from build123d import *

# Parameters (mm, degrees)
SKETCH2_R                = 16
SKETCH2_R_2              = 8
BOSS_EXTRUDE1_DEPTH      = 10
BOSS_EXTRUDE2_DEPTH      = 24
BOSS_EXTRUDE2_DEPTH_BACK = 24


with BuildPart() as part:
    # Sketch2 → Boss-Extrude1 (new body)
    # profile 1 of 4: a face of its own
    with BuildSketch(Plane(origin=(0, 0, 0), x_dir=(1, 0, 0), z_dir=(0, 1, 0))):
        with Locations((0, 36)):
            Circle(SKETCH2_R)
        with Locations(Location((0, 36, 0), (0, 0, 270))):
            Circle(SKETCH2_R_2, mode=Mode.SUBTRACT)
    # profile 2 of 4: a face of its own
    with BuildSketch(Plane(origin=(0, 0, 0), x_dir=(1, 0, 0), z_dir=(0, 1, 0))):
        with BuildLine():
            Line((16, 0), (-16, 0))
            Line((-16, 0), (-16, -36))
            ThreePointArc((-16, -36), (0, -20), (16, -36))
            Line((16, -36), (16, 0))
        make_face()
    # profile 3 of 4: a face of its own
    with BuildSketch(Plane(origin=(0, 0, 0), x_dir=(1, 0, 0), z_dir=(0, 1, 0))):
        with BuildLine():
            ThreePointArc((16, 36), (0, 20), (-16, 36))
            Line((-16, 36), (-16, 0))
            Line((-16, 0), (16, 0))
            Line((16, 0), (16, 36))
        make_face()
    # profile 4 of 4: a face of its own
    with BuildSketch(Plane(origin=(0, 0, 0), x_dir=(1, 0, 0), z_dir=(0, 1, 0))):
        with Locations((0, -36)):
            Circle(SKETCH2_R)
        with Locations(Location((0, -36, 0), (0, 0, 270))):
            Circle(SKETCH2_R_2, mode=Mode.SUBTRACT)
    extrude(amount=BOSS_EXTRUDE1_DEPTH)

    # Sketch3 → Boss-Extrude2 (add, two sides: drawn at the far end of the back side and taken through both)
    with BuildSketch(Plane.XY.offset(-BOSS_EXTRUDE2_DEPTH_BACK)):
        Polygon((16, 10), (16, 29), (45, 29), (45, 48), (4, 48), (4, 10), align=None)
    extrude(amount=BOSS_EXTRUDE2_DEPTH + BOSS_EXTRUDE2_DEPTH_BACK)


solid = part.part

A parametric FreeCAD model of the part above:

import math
import FreeCAD as App
import Part
import Sketcher
Q = App.Units.Quantity


def add_polygon(sketch, points):
    """Adds a closed chain of lines whose ends are joined by coincident constraints."""
    first, n = sketch.GeometryCount, len(points)
    for a, b in zip(points, points[1:] + points[:1]):
        sketch.addGeometry(Part.LineSegment(App.Vector(*a, 0), App.Vector(*b, 0)), False)
    for i in range(n):
        sketch.addConstraint(Sketcher.Constraint("Coincident", first + i, 2, first + (i + 1) % n, 1))

doc = App.newDocument("Part")
body = doc.addObject("PartDesign::Body", "Body")

# Sketch on XZ plane
sketch1 = doc.addObject("Sketcher::SketchObject", "Sketch")
body.addObject(sketch1)
sketch1.AttachmentSupport = (doc.XZ_Plane, [""])
sketch1.MapMode = "FlatFace"
sketch1.addGeometry([
    Part.ArcOfCircle(Part.Circle(App.Vector(0, -36, 0), App.Vector(0, 0, 1), 16), math.radians(180), math.radians(360)),  # 0
    Part.LineSegment(App.Vector(-16, -36, 0), App.Vector(-16, 36, 0)),  # 1
    Part.ArcOfCircle(Part.Circle(App.Vector(0, 36, 0), App.Vector(0, 0, 1), 16), math.radians(0), math.radians(180)),  # 2
    Part.LineSegment(App.Vector(16, 36, 0), App.Vector(16, -36, 0)),  # 3
    Part.Circle(App.Vector(0, -36, 0), App.Vector(0, 0, 1), 8),  # 4
    Part.Circle(App.Vector(0, 36, 0), App.Vector(0, 0, 1), 8),  # 5
], False)
sketch1.addConstraint([
    Sketcher.Constraint("Tangent", 0, 1, 1, 1),
    Sketcher.Constraint("Tangent", 1, 2, 2, 2),
    Sketcher.Constraint("Tangent", 2, 1, 3, 1),
    Sketcher.Constraint("Tangent", 3, 2, 0, 2),
    Sketcher.Constraint("Vertical", 1),
    Sketcher.Constraint("Vertical", 3),
    Sketcher.Constraint("Coincident", 4, 3, 0, 3),
    Sketcher.Constraint("Coincident", 5, 3, 2, 3),
    Sketcher.Constraint("Equal", 4, 5),
    Sketcher.Constraint("Symmetric", 0, 3, 2, 3, -1, 1),
    Sketcher.Constraint("Diameter", 4, Q("16 mm")),
    Sketcher.Constraint("Radius", 0, Q("16 mm")),
    Sketcher.Constraint("DistanceY", 1, 1, 1, 2, Q("72 mm")),
])
pad1 = doc.addObject("PartDesign::Pad", "Pad")
body.addObject(pad1)
pad1.Profile = sketch1
pad1.Length = 10
pad1.Reversed = True

# Sketch on XY plane
sketch2 = doc.addObject("Sketcher::SketchObject", "Sketch001")
body.addObject(sketch2)
sketch2.AttachmentSupport = (doc.XY_Plane, [""])
sketch2.MapMode = "FlatFace"
add_polygon(sketch2, [(16, 10), (16, 29), (45, 29), (45, 48), (4, 48), (4, 10)])  # lines 0-5
sketch2.addConstraint([
    Sketcher.Constraint("Vertical", 0),
    Sketcher.Constraint("Horizontal", 1),
    Sketcher.Constraint("Vertical", 2),
    Sketcher.Constraint("Horizontal", 3),
    Sketcher.Constraint("Vertical", 4),
    Sketcher.Constraint("Horizontal", 5),
    Sketcher.Constraint("Equal", 0, 2),
    Sketcher.Constraint("DistanceX", 1, 1, 1, 2, Q("29 mm")),
    Sketcher.Constraint("DistanceX", 3, 2, 3, 1, Q("41 mm")),
    Sketcher.Constraint("DistanceY", 0, 1, 0, 2, Q("19 mm")),
    Sketcher.Constraint("DistanceX", -1, 1, 0, 2, Q("16 mm")),
    Sketcher.Constraint("DistanceY", -1, 1, 0, 2, Q("29 mm")),
])
pad2 = doc.addObject("PartDesign::Pad", "Pad001")
body.addObject(pad2)
pad2.Profile = sketch2
pad2.Type = "TwoLengths"
pad2.Length = 24
pad2.Length2 = 24

doc.recompute()
